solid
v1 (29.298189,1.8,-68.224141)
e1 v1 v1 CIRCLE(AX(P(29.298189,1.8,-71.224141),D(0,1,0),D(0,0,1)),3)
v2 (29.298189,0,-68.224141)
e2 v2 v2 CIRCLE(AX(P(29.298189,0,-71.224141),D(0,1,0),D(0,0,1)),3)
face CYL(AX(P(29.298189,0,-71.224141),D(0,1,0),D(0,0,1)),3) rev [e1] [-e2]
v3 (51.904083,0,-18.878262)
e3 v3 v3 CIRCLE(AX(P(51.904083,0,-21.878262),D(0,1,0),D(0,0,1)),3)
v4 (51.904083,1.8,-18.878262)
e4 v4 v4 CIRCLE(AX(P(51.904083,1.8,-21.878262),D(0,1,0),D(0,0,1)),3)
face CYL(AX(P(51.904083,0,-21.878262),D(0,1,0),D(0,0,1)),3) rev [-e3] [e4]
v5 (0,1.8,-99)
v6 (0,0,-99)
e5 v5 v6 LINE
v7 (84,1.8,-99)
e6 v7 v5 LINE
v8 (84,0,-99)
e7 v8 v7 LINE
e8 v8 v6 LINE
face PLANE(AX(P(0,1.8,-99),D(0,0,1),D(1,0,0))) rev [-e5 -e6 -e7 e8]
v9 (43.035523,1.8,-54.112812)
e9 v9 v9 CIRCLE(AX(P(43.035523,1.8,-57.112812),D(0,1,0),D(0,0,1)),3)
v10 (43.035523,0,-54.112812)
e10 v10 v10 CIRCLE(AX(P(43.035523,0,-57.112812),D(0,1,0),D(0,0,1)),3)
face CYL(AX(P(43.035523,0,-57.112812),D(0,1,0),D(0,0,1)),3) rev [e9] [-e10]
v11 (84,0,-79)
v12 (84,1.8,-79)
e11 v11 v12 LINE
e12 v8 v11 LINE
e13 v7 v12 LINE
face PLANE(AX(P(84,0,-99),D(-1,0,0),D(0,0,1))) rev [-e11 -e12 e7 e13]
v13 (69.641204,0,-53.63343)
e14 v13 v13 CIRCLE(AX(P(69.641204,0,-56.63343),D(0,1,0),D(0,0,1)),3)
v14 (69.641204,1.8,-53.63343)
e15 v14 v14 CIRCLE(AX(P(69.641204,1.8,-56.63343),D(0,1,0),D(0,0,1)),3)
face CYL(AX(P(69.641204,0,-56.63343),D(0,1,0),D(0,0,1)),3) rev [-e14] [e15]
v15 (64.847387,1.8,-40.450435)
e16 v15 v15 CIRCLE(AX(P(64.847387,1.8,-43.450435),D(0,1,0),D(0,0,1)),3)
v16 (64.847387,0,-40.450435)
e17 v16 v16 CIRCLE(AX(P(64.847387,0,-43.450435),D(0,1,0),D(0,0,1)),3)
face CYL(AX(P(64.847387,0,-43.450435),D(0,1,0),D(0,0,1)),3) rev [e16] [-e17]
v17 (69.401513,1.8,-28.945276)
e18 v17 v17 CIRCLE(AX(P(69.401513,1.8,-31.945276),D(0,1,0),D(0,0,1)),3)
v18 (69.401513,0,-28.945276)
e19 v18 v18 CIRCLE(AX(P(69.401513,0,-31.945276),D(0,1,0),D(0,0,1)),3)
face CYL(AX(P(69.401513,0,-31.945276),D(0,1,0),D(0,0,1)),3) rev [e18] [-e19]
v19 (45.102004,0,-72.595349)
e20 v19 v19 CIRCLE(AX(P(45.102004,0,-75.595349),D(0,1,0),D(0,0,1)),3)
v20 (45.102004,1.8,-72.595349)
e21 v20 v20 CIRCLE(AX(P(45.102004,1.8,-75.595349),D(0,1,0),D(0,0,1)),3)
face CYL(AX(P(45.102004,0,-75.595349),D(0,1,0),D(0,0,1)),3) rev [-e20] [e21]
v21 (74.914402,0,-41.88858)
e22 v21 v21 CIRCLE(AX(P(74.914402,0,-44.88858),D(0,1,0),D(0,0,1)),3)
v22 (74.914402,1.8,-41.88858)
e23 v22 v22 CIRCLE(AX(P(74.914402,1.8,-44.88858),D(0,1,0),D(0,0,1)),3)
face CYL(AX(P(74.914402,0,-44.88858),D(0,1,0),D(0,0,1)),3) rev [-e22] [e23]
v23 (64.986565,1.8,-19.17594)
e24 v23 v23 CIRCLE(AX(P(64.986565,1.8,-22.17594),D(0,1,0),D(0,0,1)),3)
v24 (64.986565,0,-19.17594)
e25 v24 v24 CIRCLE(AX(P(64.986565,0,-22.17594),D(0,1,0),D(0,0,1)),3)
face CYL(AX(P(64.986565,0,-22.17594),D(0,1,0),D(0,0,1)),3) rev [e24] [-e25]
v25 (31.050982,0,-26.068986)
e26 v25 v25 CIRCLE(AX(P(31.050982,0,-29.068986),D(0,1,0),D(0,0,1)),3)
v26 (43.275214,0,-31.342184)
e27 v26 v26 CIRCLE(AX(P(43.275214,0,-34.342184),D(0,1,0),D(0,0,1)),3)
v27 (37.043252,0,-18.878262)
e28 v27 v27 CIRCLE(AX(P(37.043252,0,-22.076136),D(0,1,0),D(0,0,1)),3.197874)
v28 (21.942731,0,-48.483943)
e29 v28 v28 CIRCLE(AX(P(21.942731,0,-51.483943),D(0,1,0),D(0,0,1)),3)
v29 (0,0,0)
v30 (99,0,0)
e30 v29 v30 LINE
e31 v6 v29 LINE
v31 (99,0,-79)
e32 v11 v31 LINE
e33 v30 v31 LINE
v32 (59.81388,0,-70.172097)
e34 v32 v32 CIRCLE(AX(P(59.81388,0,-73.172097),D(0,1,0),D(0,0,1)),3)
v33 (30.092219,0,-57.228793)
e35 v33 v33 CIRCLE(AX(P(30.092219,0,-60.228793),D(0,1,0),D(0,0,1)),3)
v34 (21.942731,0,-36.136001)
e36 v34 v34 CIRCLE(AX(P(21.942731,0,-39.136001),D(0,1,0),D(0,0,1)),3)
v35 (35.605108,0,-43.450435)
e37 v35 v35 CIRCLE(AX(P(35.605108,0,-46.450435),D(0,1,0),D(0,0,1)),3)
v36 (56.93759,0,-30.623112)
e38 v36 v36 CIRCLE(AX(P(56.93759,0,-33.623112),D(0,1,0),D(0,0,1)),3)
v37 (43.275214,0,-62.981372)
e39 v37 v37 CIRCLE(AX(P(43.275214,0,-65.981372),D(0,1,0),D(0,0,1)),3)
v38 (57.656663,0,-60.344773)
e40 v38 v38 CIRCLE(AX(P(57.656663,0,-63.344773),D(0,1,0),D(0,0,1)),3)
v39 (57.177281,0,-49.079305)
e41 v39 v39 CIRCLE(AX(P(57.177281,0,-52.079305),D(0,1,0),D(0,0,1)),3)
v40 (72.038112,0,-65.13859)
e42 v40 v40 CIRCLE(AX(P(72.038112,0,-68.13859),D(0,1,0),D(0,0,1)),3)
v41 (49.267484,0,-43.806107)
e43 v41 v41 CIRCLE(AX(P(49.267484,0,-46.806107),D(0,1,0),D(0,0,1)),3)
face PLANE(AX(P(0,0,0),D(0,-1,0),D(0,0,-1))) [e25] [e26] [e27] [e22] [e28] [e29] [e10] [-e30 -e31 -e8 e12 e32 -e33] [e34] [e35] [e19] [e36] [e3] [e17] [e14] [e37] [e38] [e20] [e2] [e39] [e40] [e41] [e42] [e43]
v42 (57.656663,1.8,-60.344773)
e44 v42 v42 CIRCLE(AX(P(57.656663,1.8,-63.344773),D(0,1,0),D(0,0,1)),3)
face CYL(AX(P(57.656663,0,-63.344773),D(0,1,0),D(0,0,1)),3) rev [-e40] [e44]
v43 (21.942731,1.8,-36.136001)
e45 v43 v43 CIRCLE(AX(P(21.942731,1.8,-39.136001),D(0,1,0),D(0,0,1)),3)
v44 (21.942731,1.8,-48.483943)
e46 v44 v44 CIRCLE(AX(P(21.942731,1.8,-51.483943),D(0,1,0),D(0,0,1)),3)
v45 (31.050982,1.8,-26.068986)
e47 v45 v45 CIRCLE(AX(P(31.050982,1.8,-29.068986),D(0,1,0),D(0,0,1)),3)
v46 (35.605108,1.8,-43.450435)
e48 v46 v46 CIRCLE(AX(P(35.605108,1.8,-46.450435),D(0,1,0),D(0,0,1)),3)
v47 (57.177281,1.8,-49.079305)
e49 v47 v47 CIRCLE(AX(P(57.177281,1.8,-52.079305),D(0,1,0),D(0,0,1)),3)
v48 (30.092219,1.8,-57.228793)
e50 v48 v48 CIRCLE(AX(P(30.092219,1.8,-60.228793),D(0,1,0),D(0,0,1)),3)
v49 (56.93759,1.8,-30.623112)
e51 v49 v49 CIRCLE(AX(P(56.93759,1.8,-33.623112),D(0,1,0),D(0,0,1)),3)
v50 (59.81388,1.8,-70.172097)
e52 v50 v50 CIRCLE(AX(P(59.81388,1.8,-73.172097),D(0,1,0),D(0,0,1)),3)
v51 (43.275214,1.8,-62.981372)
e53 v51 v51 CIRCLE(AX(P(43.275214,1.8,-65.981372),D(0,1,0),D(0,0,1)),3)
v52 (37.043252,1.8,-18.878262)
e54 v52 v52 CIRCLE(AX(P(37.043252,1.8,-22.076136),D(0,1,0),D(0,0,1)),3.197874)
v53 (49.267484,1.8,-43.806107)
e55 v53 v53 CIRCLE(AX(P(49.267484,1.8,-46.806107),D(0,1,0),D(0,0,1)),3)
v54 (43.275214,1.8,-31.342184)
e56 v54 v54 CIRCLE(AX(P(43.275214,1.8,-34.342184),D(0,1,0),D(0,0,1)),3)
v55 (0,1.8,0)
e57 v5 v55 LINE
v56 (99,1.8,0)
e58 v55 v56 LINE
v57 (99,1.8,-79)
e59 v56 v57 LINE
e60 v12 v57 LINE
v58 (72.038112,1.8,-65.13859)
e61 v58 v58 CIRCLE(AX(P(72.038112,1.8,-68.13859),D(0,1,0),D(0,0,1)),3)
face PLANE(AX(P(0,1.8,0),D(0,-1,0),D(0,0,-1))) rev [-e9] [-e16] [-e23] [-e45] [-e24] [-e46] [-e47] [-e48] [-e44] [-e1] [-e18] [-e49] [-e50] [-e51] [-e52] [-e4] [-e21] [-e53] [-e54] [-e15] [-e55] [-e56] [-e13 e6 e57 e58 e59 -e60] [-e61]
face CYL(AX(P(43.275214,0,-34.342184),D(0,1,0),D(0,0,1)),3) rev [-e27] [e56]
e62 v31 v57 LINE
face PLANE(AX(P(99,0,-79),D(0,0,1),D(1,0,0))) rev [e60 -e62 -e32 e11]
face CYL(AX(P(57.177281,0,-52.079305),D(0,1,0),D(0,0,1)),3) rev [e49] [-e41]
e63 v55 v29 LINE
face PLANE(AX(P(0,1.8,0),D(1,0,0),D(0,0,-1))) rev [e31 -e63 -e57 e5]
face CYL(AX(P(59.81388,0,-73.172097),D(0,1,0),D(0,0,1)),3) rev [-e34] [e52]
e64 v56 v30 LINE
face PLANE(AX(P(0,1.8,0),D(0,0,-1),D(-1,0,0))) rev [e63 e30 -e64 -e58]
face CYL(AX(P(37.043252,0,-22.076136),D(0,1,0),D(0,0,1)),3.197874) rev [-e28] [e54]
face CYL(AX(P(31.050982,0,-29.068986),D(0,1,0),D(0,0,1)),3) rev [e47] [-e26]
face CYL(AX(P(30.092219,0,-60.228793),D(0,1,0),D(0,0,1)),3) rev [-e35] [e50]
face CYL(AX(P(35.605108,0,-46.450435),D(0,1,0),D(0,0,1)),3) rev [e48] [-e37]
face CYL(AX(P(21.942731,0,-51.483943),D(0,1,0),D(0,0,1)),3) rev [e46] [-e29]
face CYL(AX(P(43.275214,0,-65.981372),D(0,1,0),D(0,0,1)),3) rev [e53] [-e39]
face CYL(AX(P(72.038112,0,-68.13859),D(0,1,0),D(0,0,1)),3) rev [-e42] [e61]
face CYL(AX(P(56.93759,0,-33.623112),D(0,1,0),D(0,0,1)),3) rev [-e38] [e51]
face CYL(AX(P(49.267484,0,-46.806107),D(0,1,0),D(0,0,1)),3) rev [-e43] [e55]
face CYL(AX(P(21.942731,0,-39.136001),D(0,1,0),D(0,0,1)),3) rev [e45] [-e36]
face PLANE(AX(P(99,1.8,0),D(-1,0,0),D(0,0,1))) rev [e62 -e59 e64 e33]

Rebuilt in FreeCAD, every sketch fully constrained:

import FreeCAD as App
import Part
import Sketcher

V = App.Vector
Q = App.Units.Quantity

doc = App.newDocument("Part")
body = doc.addObject("PartDesign::Body", "Body")

# Sketch on XZ plane
sketch1 = body.newObject("Sketcher::SketchObject", "Sketch")
sketch1.AttachmentSupport = (doc.getObject("XZ_Plane"), [""])
sketch1.MapMode = "FlatFace"
sketch1.addGeometry([
    Part.LineSegment(V(0, -99, 0), V(0, 0, 0)),
    Part.LineSegment(V(0, 0, 0), V(99, 0, 0)),
    Part.LineSegment(V(99, 0, 0), V(99, -99, 0)),
    Part.LineSegment(V(99, -99, 0), V(0, -99, 0)),
], False)
sketch1.addConstraint([
    Sketcher.Constraint("Coincident", 0, 2, 1, 1),
    Sketcher.Constraint("Coincident", 1, 2, 2, 1),
    Sketcher.Constraint("Coincident", 2, 2, 3, 1),
    Sketcher.Constraint("Coincident", 3, 2, 0, 1),
    Sketcher.Constraint("Vertical", 0),
    Sketcher.Constraint("Horizontal", 1),
    Sketcher.Constraint("Vertical", 2),
    Sketcher.Constraint("Horizontal", 3),
    Sketcher.Constraint("Coincident", 0, 2, -1, 1),
    Sketcher.Constraint("Equal", 3, 0),
    Sketcher.Constraint("DistanceX", 1, 1, 1, 2, Q("99 mm")),
])
pad1 = body.newObject("PartDesign::Pad", "Pad")
pad1.Profile = sketch1
pad1.Length = 1.8
pad1.Reversed = True

# Sketch on XZ plane
sketch2 = body.newObject("Sketcher::SketchObject", "Sketch001")
sketch2.AttachmentSupport = (doc.getObject("XZ_Plane"), [""])
sketch2.MapMode = "FlatFace"
sketch2.AttachmentOffset = App.Placement(V(0, 0, -1.8), App.Rotation())
sketch2.addGeometry([
    Part.Circle(V(29.3, -71.2, 0), V(0, 0, 1), 3),  # 0
    Part.Circle(V(45.1, -75.6, 0), V(0, 0, 1), 3),  # 1
    Part.Circle(V(30.1, -60.2, 0), V(0, 0, 1), 3),  # 2
    Part.Circle(V(35.6, -46.5, 0), V(0, 0, 1), 3),  # 3
    Part.Circle(V(43.3, -34.3, 0), V(0, 0, 1), 3),  # 4
    Part.Circle(V(56.9, -33.6, 0), V(0, 0, 1), 3),  # 5
    Part.Circle(V(49.3, -46.8, 0), V(0, 0, 1), 3),  # 6
    Part.Circle(V(64.8, -43.5, 0), V(0, 0, 1), 3),  # 7
    Part.Circle(V(69.6, -56.6, 0), V(0, 0, 1), 3),  # 8
    Part.Circle(V(57.7, -63.3, 0), V(0, 0, 1), 3),  # 9
    Part.Circle(V(43, -57.1, 0), V(0, 0, 1), 3),  # 10
    Part.Circle(V(43.3, -66, 0), V(0, 0, 1), 3),  # 11
    Part.Circle(V(59.8, -73.2, 0), V(0, 0, 1), 3),  # 12
    Part.Circle(V(69.4, -31.9, 0), V(0, 0, 1), 3),  # 13
    Part.Circle(V(31.1, -29.1, 0), V(0, 0, 1), 3),  # 14
    Part.Circle(V(51.9, -21.9, 0), V(0, 0, 1), 3),  # 15
    Part.Circle(V(21.9, -39.1, 0), V(0, 0, 1), 3),  # 16
    Part.Circle(V(21.9, -51.5, 0), V(0, 0, 1), 3),  # 17
    Part.Circle(V(74.9, -44.9, 0), V(0, 0, 1), 3),  # 18
    Part.Circle(V(65, -22.2, 0), V(0, 0, 1), 3),  # 19
    Part.Circle(V(37, -22.1, 0), V(0, 0, 1), 3.2),  # 20
    Part.Circle(V(72, -68.1, 0), V(0, 0, 1), 3),  # 21
    Part.Circle(V(57.2, -52.1, 0), V(0, 0, 1), 3),  # 22
], False)
sketch2.addConstraint([
    Sketcher.Constraint("Equal", 0, 1),
    Sketcher.Constraint("Equal", 1, 2),
    Sketcher.Constraint("Equal", 2, 3),
    Sketcher.Constraint("Equal", 3, 4),
    Sketcher.Constraint("Equal", 4, 5),
    Sketcher.Constraint("Equal", 5, 6),
    Sketcher.Constraint("Equal", 6, 7),
    Sketcher.Constraint("Equal", 7, 8),
    Sketcher.Constraint("Equal", 8, 9),
    Sketcher.Constraint("Equal", 9, 10),
    Sketcher.Constraint("Equal", 10, 11),
    Sketcher.Constraint("Equal", 11, 12),
    Sketcher.Constraint("Equal", 12, 13),
    Sketcher.Constraint("Equal", 13, 14),
    Sketcher.Constraint("Equal", 14, 15),
    Sketcher.Constraint("Equal", 15, 16),
    Sketcher.Constraint("Equal", 16, 17),
    Sketcher.Constraint("Equal", 17, 18),
    Sketcher.Constraint("Equal", 18, 19),
    Sketcher.Constraint("Equal", 19, 21),
    Sketcher.Constraint("Equal", 21, 22),
    Sketcher.Constraint("Vertical", 4, 3, 11, 3),
    Sketcher.Constraint("Vertical", 16, 3, 17, 3),
    Sketcher.Constraint("Diameter", 0, Q("6 mm")),
    Sketcher.Constraint("DistanceY", 3, 3, 7, 3, Q("3 mm")),
    Sketcher.Constraint("Diameter", 20, Q("6.395749 mm")),
    Sketcher.Constraint("DistanceY", 16, 3, -1, 1, Q("39.136001 mm")),
    Sketcher.Constraint("DistanceX", -1, 1, 18, 3, Q("74.914402 mm")),
    Sketcher.Constraint("DistanceX", 0, 3, 5, 3, Q("27.639401 mm")),
    Sketcher.Constraint("DistanceX", 1, 3, 8, 3, Q("24.5392 mm")),
    Sketcher.Constraint("DistanceY", 11, 3, 9, 3, Q("2.636599 mm")),
    Sketcher.Constraint("DistanceX", 4, 3, 13, 3, Q("26.126299 mm")),
    Sketcher.Constraint("DistanceX", 14, 3, 15, 3, Q("20.853101 mm")),
    Sketcher.Constraint("DistanceX", 6, 3, 15, 3, Q("2.636599 mm")),
    Sketcher.Constraint("DistanceX", -1, 1, 0, 3, Q("29.298189 mm")),
    Sketcher.Constraint("DistanceY", 0, 3, -1, 1, Q("71.224141 mm")),
    Sketcher.Constraint("DistanceY", 1, 3, -1, 1, Q("75.595349 mm")),
    Sketcher.Constraint("DistanceX", -1, 1, 2, 3, Q("30.092219 mm")),
    Sketcher.Constraint("DistanceY", 5, 3, -1, 1, Q("33.623112 mm")),
    Sketcher.Constraint("DistanceY", 8, 3, -1, 1, Q("56.63343 mm")),
    Sketcher.Constraint("DistanceY", 10, 3, -1, 1, Q("57.112812 mm")),
    Sketcher.Constraint("DistanceX", -1, 1, 12, 3, Q("59.81388 mm")),
    Sketcher.Constraint("DistanceY", 15, 3, -1, 1, Q("21.878262 mm")),
    Sketcher.Constraint("DistanceX", -1, 1, 16, 3, Q("21.942731 mm")),
    Sketcher.Constraint("DistanceY", 18, 3, -1, 1, Q("44.88858 mm")),
    Sketcher.Constraint("DistanceY", 19, 3, -1, 1, Q("22.17594 mm")),
    Sketcher.Constraint("DistanceX", -1, 1, 21, 3, Q("72.038112 mm")),
    Sketcher.Constraint("DistanceY", 21, 3, -1, 1, Q("68.13859 mm")),
    Sketcher.Constraint("DistanceX", -1, 1, 22, 3, Q("57.177281 mm")),
    Sketcher.Constraint("DistanceX", 2, 3, 3, 3, Q("5.512889 mm")),
    Sketcher.Constraint("DistanceY", 3, 3, 4, 3, Q("12.108251 mm")),
    Sketcher.Constraint("DistanceY", 2, 3, 4, 3, Q("25.886608 mm")),
    Sketcher.Constraint("DistanceX", 4, 3, 1, 3, Q("1.82679 mm")),
    Sketcher.Constraint("DistanceY", 2, 3, 5, 3, Q("26.605681 mm")),
    Sketcher.Constraint("DistanceY", 6, 3, 3, 3, Q("0.355671 mm")),
    Sketcher.Constraint("DistanceX", 4, 3, 6, 3, Q("5.99227 mm")),
    Sketcher.Constraint("DistanceX", 3, 3, 7, 3, Q("29.24228 mm")),
    Sketcher.Constraint("DistanceX", 9, 3, 8, 3, Q("11.984541 mm")),
    Sketcher.Constraint("DistanceY", 9, 3, 2, 3, Q("3.115981 mm")),
    Sketcher.Constraint("DistanceX", 10, 3, 6, 3, Q("6.231961 mm")),
    Sketcher.Constraint("DistanceY", 7, 3, 13, 3, Q("11.505159 mm")),
    Sketcher.Constraint("DistanceY", 3, 3, 14, 3, Q("17.381449 mm")),
    Sketcher.Constraint("DistanceX", 14, 3, 5, 3, Q("25.886608 mm")),
    Sketcher.Constraint("DistanceY", 2, 3, 17, 3, Q("8.74485 mm")),
    Sketcher.Constraint("DistanceX", 7, 3, 19, 3, Q("0.139178 mm")),
    Sketcher.Constraint("DistanceX", 14, 3, 20, 3, Q("5.99227 mm")),
    Sketcher.Constraint("DistanceY", 14, 3, 20, 3, Q("6.99285 mm")),
    Sketcher.Constraint("DistanceY", 9, 3, 22, 3, Q("11.265468 mm")),
    Sketcher.Constraint("DistanceY", 12, 3, -1, 1, Q("73.172097 mm")),
])
pocket1 = body.newObject("PartDesign::Pocket", "Pocket")
pocket1.Profile = sketch2
pocket1.Type = "ThroughAll"
pocket1.Reversed = True

# Sketch on XZ plane
sketch3 = body.newObject("Sketcher::SketchObject", "Sketch002")
sketch3.AttachmentSupport = (doc.getObject("XZ_Plane"), [""])
sketch3.MapMode = "FlatFace"
sketch3.AttachmentOffset = App.Placement(V(0, 0, -1.8), App.Rotation())
sketch3.addGeometry([
    Part.LineSegment(V(84, -99, 0), V(84, -79, 0)),
    Part.LineSegment(V(84, -79, 0), V(99, -79, 0)),
    Part.LineSegment(V(99, -79, 0), V(99, -99, 0)),
    Part.LineSegment(V(99, -99, 0), V(84, -99, 0)),
], False)
sketch3.addConstraint([
    Sketcher.Constraint("Coincident", 0, 2, 1, 1),
    Sketcher.Constraint("Coincident", 1, 2, 2, 1),
    Sketcher.Constraint("Coincident", 2, 2, 3, 1),
    Sketcher.Constraint("Coincident", 3, 2, 0, 1),
    Sketcher.Constraint("Vertical", 0),
    Sketcher.Constraint("Horizontal", 1),
    Sketcher.Constraint("Vertical", 2),
    Sketcher.Constraint("Horizontal", 3),
    Sketcher.Constraint("DistanceX", 1, 1, 1, 2, Q("15 mm")),
    Sketcher.Constraint("DistanceY", 0, 1, 0, 2, Q("20 mm")),
    Sketcher.Constraint("DistanceX", -1, 1, 0, 2, Q("84 mm")),
    Sketcher.Constraint("DistanceY", 0, 2, -1, 1, Q("79 mm")),
])
pocket2 = body.newObject("PartDesign::Pocket", "Pocket001")
pocket2.Profile = sketch3
pocket2.Type = "ThroughAll"
pocket2.Reversed = True

doc.recompute()
